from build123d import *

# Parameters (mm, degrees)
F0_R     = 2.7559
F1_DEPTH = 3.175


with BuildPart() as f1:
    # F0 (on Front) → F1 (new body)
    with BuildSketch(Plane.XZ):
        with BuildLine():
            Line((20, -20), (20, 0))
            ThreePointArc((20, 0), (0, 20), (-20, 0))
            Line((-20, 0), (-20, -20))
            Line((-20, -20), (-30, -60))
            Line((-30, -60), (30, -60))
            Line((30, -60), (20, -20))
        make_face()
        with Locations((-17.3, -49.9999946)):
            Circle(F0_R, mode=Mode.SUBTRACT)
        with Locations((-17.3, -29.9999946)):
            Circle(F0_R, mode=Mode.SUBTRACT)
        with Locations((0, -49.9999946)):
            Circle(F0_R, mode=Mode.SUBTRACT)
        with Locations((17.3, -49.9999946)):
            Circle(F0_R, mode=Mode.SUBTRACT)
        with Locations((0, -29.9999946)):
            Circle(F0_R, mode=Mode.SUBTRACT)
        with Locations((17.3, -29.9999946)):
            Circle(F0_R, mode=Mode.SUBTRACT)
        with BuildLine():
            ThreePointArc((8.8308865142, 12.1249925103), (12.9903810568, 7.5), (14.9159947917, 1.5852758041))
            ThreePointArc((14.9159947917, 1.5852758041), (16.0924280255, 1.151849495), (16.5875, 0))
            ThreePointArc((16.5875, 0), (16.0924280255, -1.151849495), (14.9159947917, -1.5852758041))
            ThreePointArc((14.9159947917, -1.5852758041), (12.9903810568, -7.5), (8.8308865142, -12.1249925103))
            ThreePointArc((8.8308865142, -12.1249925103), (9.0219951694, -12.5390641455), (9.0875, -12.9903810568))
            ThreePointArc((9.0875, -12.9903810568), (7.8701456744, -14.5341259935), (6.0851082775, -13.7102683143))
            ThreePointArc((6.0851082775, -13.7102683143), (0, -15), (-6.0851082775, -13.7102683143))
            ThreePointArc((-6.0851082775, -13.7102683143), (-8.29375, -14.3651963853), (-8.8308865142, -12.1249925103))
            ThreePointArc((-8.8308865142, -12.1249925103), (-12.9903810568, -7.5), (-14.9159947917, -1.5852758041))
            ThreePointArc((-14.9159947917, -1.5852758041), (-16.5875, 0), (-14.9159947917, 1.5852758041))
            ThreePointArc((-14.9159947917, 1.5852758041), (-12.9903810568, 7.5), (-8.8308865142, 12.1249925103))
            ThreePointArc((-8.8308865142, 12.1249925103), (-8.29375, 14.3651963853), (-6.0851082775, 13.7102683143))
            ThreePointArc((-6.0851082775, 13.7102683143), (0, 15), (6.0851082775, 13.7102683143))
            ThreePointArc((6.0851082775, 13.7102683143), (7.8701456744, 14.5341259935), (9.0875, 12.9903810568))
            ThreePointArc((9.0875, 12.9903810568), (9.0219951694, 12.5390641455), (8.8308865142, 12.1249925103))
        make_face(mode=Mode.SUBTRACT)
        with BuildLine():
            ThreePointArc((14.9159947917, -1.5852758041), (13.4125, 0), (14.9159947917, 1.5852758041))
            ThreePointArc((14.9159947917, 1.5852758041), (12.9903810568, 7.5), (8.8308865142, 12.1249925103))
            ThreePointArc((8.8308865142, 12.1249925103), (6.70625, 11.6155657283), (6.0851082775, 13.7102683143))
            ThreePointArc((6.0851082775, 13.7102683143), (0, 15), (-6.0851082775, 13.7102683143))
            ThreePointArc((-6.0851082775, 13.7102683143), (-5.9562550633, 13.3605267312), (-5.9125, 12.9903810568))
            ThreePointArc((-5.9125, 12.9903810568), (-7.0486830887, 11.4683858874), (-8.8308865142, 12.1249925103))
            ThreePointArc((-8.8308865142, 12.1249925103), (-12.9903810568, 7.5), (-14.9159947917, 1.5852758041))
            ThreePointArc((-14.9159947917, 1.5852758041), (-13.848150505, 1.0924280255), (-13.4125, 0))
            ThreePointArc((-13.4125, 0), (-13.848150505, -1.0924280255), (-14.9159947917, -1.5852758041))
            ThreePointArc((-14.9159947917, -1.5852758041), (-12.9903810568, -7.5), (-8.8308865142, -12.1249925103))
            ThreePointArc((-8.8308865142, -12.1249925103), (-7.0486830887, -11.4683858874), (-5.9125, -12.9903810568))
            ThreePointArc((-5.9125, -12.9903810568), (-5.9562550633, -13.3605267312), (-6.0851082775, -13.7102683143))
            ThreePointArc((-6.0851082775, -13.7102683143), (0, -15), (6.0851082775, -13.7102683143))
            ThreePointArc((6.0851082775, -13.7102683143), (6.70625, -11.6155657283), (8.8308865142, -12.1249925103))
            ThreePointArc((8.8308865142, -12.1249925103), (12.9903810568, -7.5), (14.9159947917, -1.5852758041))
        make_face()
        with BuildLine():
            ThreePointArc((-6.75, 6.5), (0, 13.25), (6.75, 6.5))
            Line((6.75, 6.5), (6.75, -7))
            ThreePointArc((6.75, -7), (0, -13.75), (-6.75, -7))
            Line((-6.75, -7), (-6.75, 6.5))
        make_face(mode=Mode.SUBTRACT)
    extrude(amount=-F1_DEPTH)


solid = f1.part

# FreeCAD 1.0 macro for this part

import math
import FreeCAD as App
import Part
import Sketcher
from FreeCAD import Vector
Q = App.Units.Quantity

doc = App.newDocument("Part")
params = doc.addObject("Spreadsheet::Sheet", "Params")
for row, (alias, value) in enumerate([
    ("sketch1_radius", "20 mm"),
    ("sketch1_width", "60 mm"),
    ("sketch1_height", "20 mm"),
    ("sketch1_radius2", "6.75 mm"),
    ("sketch1_height2", "13.5 mm"),
    ("pad1_length", "3.175 mm"),
], start=1):
    params.set(f"A{row}", alias)
    params.set(f"B{row}", "=" + value)
    params.setAlias(f"B{row}", alias)

body = doc.addObject("PartDesign::Body", "Body")

sketch1 = body.newObject("Sketcher::SketchObject", "Sketch")
sketch1.AttachmentSupport = (doc.getObject("XZ_Plane"), [""])
sketch1.MapMode = "FlatFace"
sketch1.addGeometry([
    Part.LineSegment(Vector(20, -20, 0), Vector(20, 0, 0)),
    Part.ArcOfCircle(Part.Circle(Vector(0, 0, 0), Vector(0, 0, 1), 20), math.radians(0), math.radians(180)),
    Part.LineSegment(Vector(-20, 0, 0), Vector(-20, -20, 0)),
    Part.LineSegment(Vector(-20, -20, 0), Vector(-30, -60, 0)),
    Part.LineSegment(Vector(-30, -60, 0), Vector(30, -60, 0)),
    Part.LineSegment(Vector(30, -60, 0), Vector(20, -20, 0)),
    Part.Circle(Vector(-17.3, -50, 0), Vector(0, 0, 1), 2.8),
    Part.Circle(Vector(-17.3, -30, 0), Vector(0, 0, 1), 2.8),
    Part.Circle(Vector(0, -50, 0), Vector(0, 0, 1), 2.8),
    Part.Circle(Vector(17.3, -50, 0), Vector(0, 0, 1), 2.8),
    Part.Circle(Vector(0, -30, 0), Vector(0, 0, 1), 2.8),
    Part.Circle(Vector(17.3, -30, 0), Vector(0, 0, 1), 2.8),
    Part.ArcOfCircle(Part.Circle(Vector(-7.5, -13, 0), Vector(0, 0, 1), 1.6), math.radians(147), math.radians(333)),
    Part.ArcOfCircle(Part.Circle(Vector(-7.5, -13, 0), Vector(0, 0, 1), 1.6), math.radians(0), math.radians(147)),
    Part.ArcOfCircle(Part.Circle(Vector(-7.5, -13, 0), Vector(0, 0, 1), 1.6), math.radians(-27), math.radians(0)),
    Part.ArcOfCircle(Part.Circle(Vector(-15, 0, 0), Vector(0, 0, 1), 1.6), math.radians(87), math.radians(273)),
    Part.ArcOfCircle(Part.Circle(Vector(-15, 0, 0), Vector(0, 0, 1), 1.6), math.radians(0), math.radians(87)),
    Part.ArcOfCircle(Part.Circle(Vector(-15, 0, 0), Vector(0, 0, 1), 1.6), math.radians(-87), math.radians(0)),
    Part.ArcOfCircle(Part.Circle(Vector(-7.5, 13, 0), Vector(0, 0, 1), 1.6), math.radians(27), math.radians(213)),
    Part.ArcOfCircle(Part.Circle(Vector(-7.5, 13, 0), Vector(0, 0, 1), 1.6), math.radians(0), math.radians(27)),
    Part.ArcOfCircle(Part.Circle(Vector(-7.5, 13, 0), Vector(0, 0, 1), 1.6), math.radians(-147), math.radians(0)),
    Part.ArcOfCircle(Part.Circle(Vector(7.5, -13, 0), Vector(0, 0, 1), 1.6), math.radians(-153), math.radians(0)),
    Part.ArcOfCircle(Part.Circle(Vector(7.5, -13, 0), Vector(0, 0, 1), 1.6), math.radians(33), math.radians(207)),
    Part.ArcOfCircle(Part.Circle(Vector(7.5, -13, 0), Vector(0, 0, 1), 1.6), math.radians(0), math.radians(33)),
    Part.LineSegment(Vector(-6.8, -7, 0), Vector(-6.8, 6.5, 0)),
    Part.ArcOfCircle(Part.Circle(Vector(0, 6.5, 0), Vector(0, 0, 1), 6.8), math.radians(0), math.radians(180)),
    Part.LineSegment(Vector(6.8, 6.5, 0), Vector(6.8, -7, 0)),
    Part.ArcOfCircle(Part.Circle(Vector(0, -7, 0), Vector(0, 0, 1), 6.8), math.radians(180), math.radians(360)),
    Part.ArcOfCircle(Part.Circle(Vector(7.5, 13, 0), Vector(0, 0, 1), 1.6), math.radians(-33), math.radians(0)),
    Part.ArcOfCircle(Part.Circle(Vector(7.5, 13, 0), Vector(0, 0, 1), 1.6), math.radians(153), math.radians(327)),
    Part.ArcOfCircle(Part.Circle(Vector(7.5, 13, 0), Vector(0, 0, 1), 1.6), math.radians(0), math.radians(153)),
    Part.ArcOfCircle(Part.Circle(Vector(15, 0, 0), Vector(0, 0, 1), 1.6), math.radians(-93), math.radians(0)),
    Part.ArcOfCircle(Part.Circle(Vector(15, 0, 0), Vector(0, 0, 1), 1.6), math.radians(93), math.radians(267)),
    Part.ArcOfCircle(Part.Circle(Vector(15, 0, 0), Vector(0, 0, 1), 1.6), math.radians(0), math.radians(93)),
], False)
sketch1.addConstraint([
    Sketcher.Constraint("Tangent", 0, 2, 1, 1),
    Sketcher.Constraint("Tangent", 1, 2, 2, 1),
    Sketcher.Constraint("Coincident", 2, 2, 3, 1),
    Sketcher.Constraint("Coincident", 3, 2, 4, 1),
    Sketcher.Constraint("Coincident", 4, 2, 5, 1),
    Sketcher.Constraint("Coincident", 5, 2, 0, 1),
    Sketcher.Constraint("Tangent", 12, 1, 13, 2),
    Sketcher.Constraint("Tangent", 13, 1, 14, 2),
    Sketcher.Constraint("Tangent", 14, 1, 12, 2),
    Sketcher.Constraint("Tangent", 15, 1, 16, 2),
    Sketcher.Constraint("Tangent", 16, 1, 17, 2),
    Sketcher.Constraint("Tangent", 17, 1, 15, 2),
    Sketcher.Constraint("Tangent", 18, 1, 19, 2),
    Sketcher.Constraint("Tangent", 19, 1, 20, 2),
    Sketcher.Constraint("Tangent", 20, 1, 18, 2),
    Sketcher.Constraint("Tangent", 21, 1, 22, 2),
    Sketcher.Constraint("Tangent", 22, 1, 23, 2),
    Sketcher.Constraint("Tangent", 23, 1, 21, 2),
    Sketcher.Constraint("Tangent", 24, 2, 25, 2),
    Sketcher.Constraint("Tangent", 25, 1, 26, 1),
    Sketcher.Constraint("Tangent", 26, 2, 27, 2),
    Sketcher.Constraint("Tangent", 27, 1, 24, 1),
    Sketcher.Constraint("Tangent", 28, 1, 29, 2),
    Sketcher.Constraint("Tangent", 29, 1, 30, 2),
    Sketcher.Constraint("Tangent", 30, 1, 28, 2),
    Sketcher.Constraint("Tangent", 31, 1, 32, 2),
    Sketcher.Constraint("Tangent", 32, 1, 33, 2),
    Sketcher.Constraint("Tangent", 33, 1, 31, 2),
    Sketcher.Constraint("Vertical", 0),
    Sketcher.Constraint("Vertical", 2),
    Sketcher.Constraint("Horizontal", 4),
    Sketcher.Constraint("Vertical", 24),
    Sketcher.Constraint("Vertical", 26),
    Sketcher.Constraint("Coincident", 1, 3, -1, 1),
    Sketcher.Constraint("Equal", 6, 7),
    Sketcher.Constraint("Equal", 7, 8),
    Sketcher.Constraint("Equal", 8, 9),
    Sketcher.Constraint("Equal", 9, 10),
    Sketcher.Constraint("Equal", 10, 11),
    Sketcher.Constraint("Equal", 14, 15),
    Sketcher.Constraint("Equal", 17, 18),
    Sketcher.Constraint("Equal", 20, 21),
    Sketcher.Constraint("Equal", 23, 28),
    Sketcher.Constraint("Equal", 30, 31),
    Sketcher.Constraint("Symmetric", 18, 3, 21, 3, -1, 1),
    Sketcher.Constraint("Symmetric", 12, 3, 28, 3, -1, 1),
    Sketcher.Constraint("Symmetric", 15, 3, 31, 3, -1, 1),
    Sketcher.Constraint("Symmetric", 6, 3, 9, 3, -2),
    Sketcher.Constraint("Symmetric", 7, 3, 11, 3, -2),
    Sketcher.Constraint("Symmetric", 12, 3, 21, 3, -2),
    Sketcher.Constraint("Symmetric", 17, 1, 31, 1, -2),
    Sketcher.Constraint("PointOnObject", 8, 3, -2),
    Sketcher.Constraint("PointOnObject", 10, 3, -2),
    Sketcher.Constraint("PointOnObject", 25, 3, -2),
    Sketcher.Constraint("PointOnObject", 16, 1, -1),
    Sketcher.Constraint("PointOnObject", 33, 1, -1),
    Sketcher.Constraint("Horizontal", 6, 3, 8, 3),
    Sketcher.Constraint("Horizontal", 7, 3, 10, 3),
    Sketcher.Constraint("Horizontal", 2, 2, 5, 2),
    Sketcher.Constraint("Horizontal", 23, 3, 13, 1),
    Sketcher.Constraint("Horizontal", 30, 3, 19, 1),
    Sketcher.Constraint("Horizontal", 14, 1, 21, 1),
    Sketcher.Constraint("Horizontal", 12, 1, 22, 1),
    Sketcher.Constraint("Horizontal", 13, 1, 23, 1),
    Sketcher.Constraint("Horizontal", 20, 1, 28, 1),
    Sketcher.Constraint("Horizontal", 18, 1, 29, 1),
    Sketcher.Constraint("Horizontal", 19, 1, 30, 1),
    Sketcher.Constraint("Horizontal", 15, 1, 32, 1),
    Sketcher.Constraint("Vertical", 6, 3, 7, 3),
    Sketcher.Constraint("Vertical", 15, 1, 17, 1),
    Sketcher.Constraint("Vertical", 14, 1, 18, 1),
    Sketcher.Constraint("Vertical", 12, 1, 20, 1),
    Sketcher.Constraint("Equal", 3, 5),
    Sketcher.Constraint("Radius", 1, Q("20 mm")),
    Sketcher.Constraint("DistanceX", 4, 1, 4, 2, Q("60 mm")),
    Sketcher.Constraint("DistanceY", 0, 1, 0, 2, Q("20 mm")),
    Sketcher.Constraint("Radius", 25, Q("6.75 mm")),
    Sketcher.Constraint("DistanceY", 24, 1, 24, 2, Q("13.5 mm")),
    Sketcher.Constraint("DistanceX", 15, 3, -1, 1, Q("15 mm")),
    Sketcher.Constraint("DistanceY", 27, 3, -1, 1, Q("7 mm")),
    Sketcher.Constraint("DistanceY", 3, 2, -1, 1, Q("60 mm")),
    Sketcher.Constraint("DistanceY", 6, 3, 7, 3, Q("20 mm")),
    Sketcher.Constraint("DistanceX", 12, 3, 21, 3, Q("15 mm")),
    Sketcher.Constraint("Diameter", 6, Q("5.5118 mm")),
    Sketcher.Constraint("DistanceX", 6, 3, -1, 1, Q("17.3 mm")),
    Sketcher.Constraint("Radius", 12, Q("1.5875 mm")),
    Sketcher.Constraint("DistanceY", 12, 3, -1, 1, Q("12.990381 mm")),
    Sketcher.Constraint("DistanceX", 14, 1, -1, 1, Q("6.085108 mm")),
    Sketcher.Constraint("DistanceY", 14, 3, 12, 1, Q("0.865389 mm")),
    Sketcher.Constraint("DistanceY", 17, 1, 15, 1, Q("3.170552 mm")),
    Sketcher.Constraint("DistanceY", 6, 3, -1, 1, Q("49.999995 mm")),
])
sketch1.setExpression("Constraints[73]", "Params.sketch1_radius")
sketch1.setExpression("Constraints[74]", "Params.sketch1_width")
sketch1.setExpression("Constraints[75]", "Params.sketch1_height")
sketch1.setExpression("Constraints[76]", "Params.sketch1_radius2")
sketch1.setExpression("Constraints[77]", "Params.sketch1_height2")
pad1 = body.newObject("PartDesign::Pad", "Pad")
pad1.Profile = sketch1
pad1.setExpression("Length", "Params.pad1_length")
pad1.Reversed = True

doc.recompute()
